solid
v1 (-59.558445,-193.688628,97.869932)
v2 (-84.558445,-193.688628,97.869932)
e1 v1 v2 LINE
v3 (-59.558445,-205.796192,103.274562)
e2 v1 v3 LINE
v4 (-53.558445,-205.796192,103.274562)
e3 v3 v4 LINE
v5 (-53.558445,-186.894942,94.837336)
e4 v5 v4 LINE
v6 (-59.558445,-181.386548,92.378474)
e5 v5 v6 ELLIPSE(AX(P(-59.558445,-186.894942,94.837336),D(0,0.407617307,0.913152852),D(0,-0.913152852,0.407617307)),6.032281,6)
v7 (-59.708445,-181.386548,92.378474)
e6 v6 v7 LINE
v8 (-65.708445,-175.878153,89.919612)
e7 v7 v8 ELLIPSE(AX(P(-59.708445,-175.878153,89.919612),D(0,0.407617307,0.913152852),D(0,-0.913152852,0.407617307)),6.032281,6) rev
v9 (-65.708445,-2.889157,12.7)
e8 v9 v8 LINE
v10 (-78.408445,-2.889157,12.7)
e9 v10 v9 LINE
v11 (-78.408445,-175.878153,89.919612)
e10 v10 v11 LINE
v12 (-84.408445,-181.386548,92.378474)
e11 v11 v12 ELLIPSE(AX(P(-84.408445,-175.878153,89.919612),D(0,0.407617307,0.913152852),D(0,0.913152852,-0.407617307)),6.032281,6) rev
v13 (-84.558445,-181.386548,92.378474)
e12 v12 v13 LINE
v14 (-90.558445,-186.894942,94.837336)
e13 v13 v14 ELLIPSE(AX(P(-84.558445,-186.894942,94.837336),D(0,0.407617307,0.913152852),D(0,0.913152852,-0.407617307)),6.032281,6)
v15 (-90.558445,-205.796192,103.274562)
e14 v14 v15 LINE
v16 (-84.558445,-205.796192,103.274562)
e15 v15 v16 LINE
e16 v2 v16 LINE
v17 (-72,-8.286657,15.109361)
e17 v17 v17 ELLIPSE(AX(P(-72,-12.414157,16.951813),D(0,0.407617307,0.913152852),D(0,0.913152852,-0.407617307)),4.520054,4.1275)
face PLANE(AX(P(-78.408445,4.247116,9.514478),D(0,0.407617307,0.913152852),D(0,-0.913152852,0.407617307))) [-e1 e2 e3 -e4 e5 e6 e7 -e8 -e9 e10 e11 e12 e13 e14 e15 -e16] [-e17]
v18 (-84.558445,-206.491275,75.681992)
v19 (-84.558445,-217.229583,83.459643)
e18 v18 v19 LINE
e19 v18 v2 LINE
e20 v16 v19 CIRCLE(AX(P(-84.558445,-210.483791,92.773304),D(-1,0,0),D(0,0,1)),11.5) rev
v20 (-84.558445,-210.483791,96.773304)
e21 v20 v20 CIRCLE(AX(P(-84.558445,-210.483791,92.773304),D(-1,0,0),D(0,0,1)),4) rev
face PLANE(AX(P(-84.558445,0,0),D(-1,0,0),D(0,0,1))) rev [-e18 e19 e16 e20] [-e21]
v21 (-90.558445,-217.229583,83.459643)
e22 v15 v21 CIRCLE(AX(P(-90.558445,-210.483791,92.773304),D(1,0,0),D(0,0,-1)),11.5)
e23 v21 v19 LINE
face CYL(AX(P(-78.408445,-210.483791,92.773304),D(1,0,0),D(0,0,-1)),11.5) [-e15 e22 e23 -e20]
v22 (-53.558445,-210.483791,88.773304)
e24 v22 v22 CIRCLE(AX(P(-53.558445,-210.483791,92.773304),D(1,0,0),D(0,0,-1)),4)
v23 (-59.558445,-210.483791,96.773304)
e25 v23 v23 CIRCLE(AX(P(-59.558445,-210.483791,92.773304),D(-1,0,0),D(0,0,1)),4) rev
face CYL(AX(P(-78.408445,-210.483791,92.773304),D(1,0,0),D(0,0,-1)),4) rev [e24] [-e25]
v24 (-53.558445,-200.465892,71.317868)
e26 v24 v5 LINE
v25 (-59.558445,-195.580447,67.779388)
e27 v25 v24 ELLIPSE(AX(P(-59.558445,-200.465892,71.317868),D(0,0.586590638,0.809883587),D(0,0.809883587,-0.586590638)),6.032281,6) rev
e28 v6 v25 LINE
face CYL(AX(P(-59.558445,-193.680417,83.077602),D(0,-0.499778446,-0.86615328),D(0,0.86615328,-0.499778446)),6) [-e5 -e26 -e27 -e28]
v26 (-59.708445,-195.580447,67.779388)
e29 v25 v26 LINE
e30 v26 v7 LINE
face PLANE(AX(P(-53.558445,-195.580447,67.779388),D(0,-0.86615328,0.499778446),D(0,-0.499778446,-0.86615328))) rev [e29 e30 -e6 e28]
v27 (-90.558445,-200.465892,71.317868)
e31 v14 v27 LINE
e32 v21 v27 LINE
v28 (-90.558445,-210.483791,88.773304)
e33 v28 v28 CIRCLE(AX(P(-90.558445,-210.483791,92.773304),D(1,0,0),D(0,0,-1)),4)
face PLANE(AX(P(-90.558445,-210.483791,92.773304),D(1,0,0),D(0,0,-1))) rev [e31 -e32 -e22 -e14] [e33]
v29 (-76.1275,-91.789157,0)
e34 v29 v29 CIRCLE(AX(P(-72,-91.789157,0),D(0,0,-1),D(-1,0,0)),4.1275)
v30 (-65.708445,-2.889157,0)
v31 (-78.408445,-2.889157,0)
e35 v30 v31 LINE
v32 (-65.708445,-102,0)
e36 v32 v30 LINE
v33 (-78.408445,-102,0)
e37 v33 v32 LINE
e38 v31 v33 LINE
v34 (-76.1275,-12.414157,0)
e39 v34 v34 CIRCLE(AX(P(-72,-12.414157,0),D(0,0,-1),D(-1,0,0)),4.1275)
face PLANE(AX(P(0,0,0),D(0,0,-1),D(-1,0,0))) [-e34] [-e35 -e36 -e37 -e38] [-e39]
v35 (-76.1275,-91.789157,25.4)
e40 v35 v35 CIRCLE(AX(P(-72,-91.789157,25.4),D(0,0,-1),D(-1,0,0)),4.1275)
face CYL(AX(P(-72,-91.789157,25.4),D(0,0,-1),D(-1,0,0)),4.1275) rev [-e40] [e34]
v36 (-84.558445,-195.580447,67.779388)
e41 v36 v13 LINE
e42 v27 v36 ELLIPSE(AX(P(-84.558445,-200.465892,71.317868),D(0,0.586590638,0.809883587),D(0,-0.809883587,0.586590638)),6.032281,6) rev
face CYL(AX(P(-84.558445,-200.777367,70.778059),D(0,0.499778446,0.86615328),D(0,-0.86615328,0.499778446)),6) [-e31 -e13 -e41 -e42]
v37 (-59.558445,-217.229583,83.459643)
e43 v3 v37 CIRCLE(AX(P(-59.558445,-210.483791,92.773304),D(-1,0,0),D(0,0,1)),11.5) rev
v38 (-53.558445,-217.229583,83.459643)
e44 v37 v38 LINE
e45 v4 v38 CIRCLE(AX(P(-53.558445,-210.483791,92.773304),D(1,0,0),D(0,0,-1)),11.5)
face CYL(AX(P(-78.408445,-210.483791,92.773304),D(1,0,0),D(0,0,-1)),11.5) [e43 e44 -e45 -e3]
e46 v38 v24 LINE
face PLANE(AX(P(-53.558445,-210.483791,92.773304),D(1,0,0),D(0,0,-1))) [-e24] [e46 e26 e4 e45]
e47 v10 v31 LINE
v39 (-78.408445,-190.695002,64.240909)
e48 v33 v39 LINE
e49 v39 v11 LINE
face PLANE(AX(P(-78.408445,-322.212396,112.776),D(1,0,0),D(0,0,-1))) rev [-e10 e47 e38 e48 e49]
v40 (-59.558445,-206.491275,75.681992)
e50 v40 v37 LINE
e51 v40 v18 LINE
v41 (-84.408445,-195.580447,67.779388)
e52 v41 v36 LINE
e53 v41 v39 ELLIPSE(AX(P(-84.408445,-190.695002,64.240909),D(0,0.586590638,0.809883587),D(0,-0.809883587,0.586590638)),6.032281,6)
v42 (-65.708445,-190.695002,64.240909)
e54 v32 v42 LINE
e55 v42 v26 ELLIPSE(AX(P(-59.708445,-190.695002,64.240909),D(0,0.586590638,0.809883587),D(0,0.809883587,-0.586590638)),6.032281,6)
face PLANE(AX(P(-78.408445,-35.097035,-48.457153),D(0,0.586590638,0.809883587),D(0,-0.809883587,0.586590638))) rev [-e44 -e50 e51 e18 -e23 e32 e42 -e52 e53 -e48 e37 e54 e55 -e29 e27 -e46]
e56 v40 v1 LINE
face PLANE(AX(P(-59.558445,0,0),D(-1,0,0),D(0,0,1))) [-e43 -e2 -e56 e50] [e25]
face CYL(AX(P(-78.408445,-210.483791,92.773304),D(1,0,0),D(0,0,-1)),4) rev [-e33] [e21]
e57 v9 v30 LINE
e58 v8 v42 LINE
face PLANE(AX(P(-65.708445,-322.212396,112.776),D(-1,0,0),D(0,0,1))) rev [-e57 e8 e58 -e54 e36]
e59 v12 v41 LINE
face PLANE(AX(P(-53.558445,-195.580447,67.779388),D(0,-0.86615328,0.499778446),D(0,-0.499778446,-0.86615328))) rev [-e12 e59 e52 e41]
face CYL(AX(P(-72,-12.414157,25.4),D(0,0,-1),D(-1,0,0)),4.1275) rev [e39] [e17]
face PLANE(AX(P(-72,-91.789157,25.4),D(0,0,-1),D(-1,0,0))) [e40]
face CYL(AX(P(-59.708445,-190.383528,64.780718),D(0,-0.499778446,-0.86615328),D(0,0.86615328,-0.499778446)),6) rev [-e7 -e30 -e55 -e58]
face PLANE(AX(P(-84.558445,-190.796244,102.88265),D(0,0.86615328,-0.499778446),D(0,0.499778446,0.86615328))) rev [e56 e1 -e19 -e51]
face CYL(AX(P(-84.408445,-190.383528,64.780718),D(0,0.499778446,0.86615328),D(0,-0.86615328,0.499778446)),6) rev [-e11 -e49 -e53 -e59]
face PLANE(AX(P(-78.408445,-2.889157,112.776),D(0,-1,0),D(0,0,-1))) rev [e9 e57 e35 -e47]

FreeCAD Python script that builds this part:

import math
import FreeCAD as App
import Part
import Sketcher

V = App.Vector


def edges_at(feature, points):
    """Names of the edges that pass closest to the given points."""
    edges = feature.Shape.Edges
    near = lambda p: min(range(len(edges)), key=lambda i: edges[i].distToShape(Part.Vertex(*p))[0])
    return sorted({f"Edge{near(p) + 1}" for p in points})


def add_polygon(sketch, points):
    """Adds a closed chain of lines whose ends are joined by coincident constraints."""
    first, n = sketch.GeometryCount, len(points)
    for a, b in zip(points, points[1:] + points[:1]):
        sketch.addGeometry(Part.LineSegment(App.Vector(*a, 0), App.Vector(*b, 0)), False)
    for i in range(n):
        sketch.addConstraint(Sketcher.Constraint("Coincident", first + i, 2, first + (i + 1) % n, 1))

doc = App.newDocument("Part")
body = doc.addObject("PartDesign::Body", "Body")

# Sketch on XY plane
sketch1 = doc.addObject("Sketcher::SketchObject", "Sketch")
body.addObject(sketch1)
sketch1.AttachmentSupport = (doc.XY_Plane, [""])
sketch1.MapMode = "FlatFace"
add_polygon(sketch1, [(-78.408445, -2.889157), (-78.408445, -322.212396), (-65.708445, -322.212396), (-65.708445, -2.889157)])  # lines 0-3
sketch1.addConstraint([
    Sketcher.Constraint("Vertical", 0),
    Sketcher.Constraint("Horizontal", 1),
    Sketcher.Constraint("Vertical", 2),
    Sketcher.Constraint("Horizontal", 3),
    Sketcher.Constraint("DistanceX", 1, 1, 1, 2, 12.7),
    Sketcher.Constraint("DistanceY", 0, 2, 0, 1, 319.32324),
    Sketcher.Constraint("DistanceX", 0, 2, -1, 1, 78.408445),
    Sketcher.Constraint("DistanceY", 0, 2, -1, 1, 322.212396),
])
pad1 = doc.addObject("PartDesign::Pad", "Pad")
body.addObject(pad1)
pad1.Profile = sketch1
pad1.Length = 112.776

# Sketch on YZ plane
sketch2 = doc.addObject("Sketcher::SketchObject", "Sketch001")
body.addObject(sketch2)
sketch2.AttachmentSupport = (doc.YZ_Plane, [""])
sketch2.MapMode = "FlatFace"
sketch2.AttachmentOffset = App.Placement(V(0, 0, -65.708445), App.Rotation())
sketch2.addGeometry([
    Part.LineSegment(V(-322.212396, 0, 0), V(-102, 0, 0)),  # 0
    Part.LineSegment(V(-102, 0, 0), V(-217.229583, 83.459643, 0)),  # 1
    Part.ArcOfCircle(Part.Circle(V(-210.483791, 92.773304, 0), V(0, 0, 1), 11.5), math.radians(65.944755), math.radians(234.084559)),  # 2
    Part.LineSegment(V(-205.796192, 103.274562, 0), V(-2.889157, 12.7, 0)),  # 3
    Part.LineSegment(V(-2.889157, 12.7, 0), V(-2.889157, 112.776, 0)),  # 4
    Part.LineSegment(V(-2.889157, 112.776, 0), V(-322.212396, 112.776, 0)),  # 5
    Part.LineSegment(V(-322.212396, 112.776, 0), V(-322.212396, 0, 0)),  # 6
    Part.Circle(V(-210.483791, 92.773304, 0), V(0, 0, 1), 4),  # 7
], False)
sketch2.addConstraint([
    Sketcher.Constraint("Coincident", 0, 2, 1, 1),
    Sketcher.Constraint("Tangent", 1, 2, 2, 2),
    Sketcher.Constraint("Tangent", 2, 1, 3, 1),
    Sketcher.Constraint("Coincident", 3, 2, 4, 1),
    Sketcher.Constraint("Coincident", 4, 2, 5, 1),
    Sketcher.Constraint("Coincident", 5, 2, 6, 1),
    Sketcher.Constraint("Coincident", 6, 2, 0, 1),
    Sketcher.Constraint("Horizontal", 0),
    Sketcher.Constraint("Vertical", 4),
    Sketcher.Constraint("Horizontal", 5),
    Sketcher.Constraint("Vertical", 6),
    Sketcher.Constraint("Coincident", 7, 3, 2, 3),
    Sketcher.Constraint("PointOnObject", 0, 2, -1),
    Sketcher.Constraint("Diameter", 7, 8.0),
    Sketcher.Constraint("Radius", 2, 11.5),
    Sketcher.Constraint("DistanceX", 0, 2, -1, 1, 102.0),
    Sketcher.Constraint("DistanceY", -1, 1, 3, 2, 12.7),
    Sketcher.Constraint("DistanceY", 4, 1, 4, 2, 100.076),
    Sketcher.Constraint("DistanceX", 5, 2, 5, 1, 319.32324),
    Sketcher.Constraint("DistanceX", 2, 3, 2, 1, 4.687599),
    Sketcher.Constraint("DistanceX", 0, 1, 0, 2, 220.212396),
    Sketcher.Constraint("DistanceX", 2, 3, -1, 1, 210.483791),
])
pocket1 = doc.addObject("PartDesign::Pocket", "Pocket")
body.addObject(pocket1)
pocket1.Profile = sketch2
pocket1.Type = "ThroughAll"

# Sketch on XY plane
sketch3 = doc.addObject("Sketcher::SketchObject", "Sketch002")
body.addObject(sketch3)
sketch3.AttachmentSupport = (doc.XY_Plane, [""])
sketch3.MapMode = "FlatFace"
sketch3.addGeometry([
    Part.Circle(V(-72, -12.414157, 0), V(0, 0, 1), 4.1275),
    Part.Circle(V(-72, -91.789157, 0), V(0, 0, 1), 4.1275),
], False)
sketch3.addConstraint([
    Sketcher.Constraint("Equal", 0, 1),
    Sketcher.Constraint("Vertical", 0, 3, 1, 3),
    Sketcher.Constraint("Diameter", 0, 8.255),
    Sketcher.Constraint("DistanceX", 0, 3, -1, 1, 72.0),
    Sketcher.Constraint("DistanceY", 1, 3, 0, 3, 79.375),
    Sketcher.Constraint("DistanceY", 0, 3, -1, 1, 12.414157),
])
pocket2 = doc.addObject("PartDesign::Pocket", "Pocket001")
body.addObject(pocket2)
pocket2.Profile = sketch3
pocket2.Length = 25.4
pocket2.Reversed = True

# Sketch on YZ plane
sketch4 = doc.addObject("Sketcher::SketchObject", "Sketch003")
body.addObject(sketch4)
sketch4.AttachmentSupport = (doc.YZ_Plane, [""])
sketch4.MapMode = "FlatFace"
sketch4.AttachmentOffset = App.Placement(V(0, 0, -72.058445), App.Rotation())
sketch4.addGeometry([
    Part.LineSegment(V(-195.580447, 67.779388, 0), V(-181.386548, 92.378474, 0)),  # 0
    Part.LineSegment(V(-181.386548, 92.378474, 0), V(-205.796192, 103.274562, 0)),  # 1
    Part.ArcOfCircle(Part.Circle(V(-210.483791, 92.773304, 0), V(0, 0, 1), 11.5), math.radians(65.944755), math.radians(234.084559)),  # 2
    Part.LineSegment(V(-217.229583, 83.459643, 0), V(-195.580447, 67.779388, 0)),  # 3
    Part.Circle(V(-210.483791, 92.773304, 0), V(0, 0, 1), 4),  # 4
], False)
sketch4.addConstraint([
    Sketcher.Constraint("Coincident", 0, 2, 1, 1),
    Sketcher.Constraint("Tangent", 1, 2, 2, 1),
    Sketcher.Constraint("Tangent", 2, 2, 3, 1),
    Sketcher.Constraint("Coincident", 3, 2, 0, 1),
    Sketcher.Constraint("Coincident", 4, 3, 2, 3),
    Sketcher.Constraint("Equal", 1, 3),
    Sketcher.Constraint("Diameter", 4, 8.0),
    Sketcher.Constraint("Radius", 2, 11.5),
    Sketcher.Constraint("DistanceX", 2, 3, 1, 2, 4.687599),
    Sketcher.Constraint("DistanceX", 3, 2, 0, 2, 14.1939),
    Sketcher.Constraint("Distance", 1, 26.73117),
    Sketcher.Constraint("DistanceX", 2, 3, -1, 1, 210.483791),
    Sketcher.Constraint("DistanceY", -1, 1, 1, 2, 103.274562),
])
pad2 = doc.addObject("PartDesign::Pad", "Pad001")
body.addObject(pad2)
pad2.Profile = sketch4
pad2.Length = 37
pad2.Midplane = True

# Sketch on YZ plane
sketch5 = doc.addObject("Sketcher::SketchObject", "Sketch004")
body.addObject(sketch5)
sketch5.AttachmentSupport = (doc.YZ_Plane, [""])
sketch5.MapMode = "FlatFace"
sketch5.AttachmentOffset = App.Placement(V(0, 0, -72.058445), App.Rotation())
add_polygon(sketch5, [(-217.519298, 56.569607), (-190.796244, 102.88265), (-230.32789, 153.833763), (-269.679128, 85.086214)])  # lines 0-3
sketch5.addConstraint([
    Sketcher.Constraint("Distance", 0, 53.469801),
    Sketcher.Constraint("Distance", 2, 79.213291),
    Sketcher.Constraint("Distance", 3, 59.44615),
    Sketcher.Constraint("DistanceY", -1, 1, 0, 2, 102.88265),
    Sketcher.Constraint("DistanceX", 1, 2, -1, 1, 230.32789),
    Sketcher.Constraint("DistanceX", 2, 2, -1, 1, 269.679128),
    Sketcher.Constraint("DistanceX", 2, 2, 3, 2, 52.159831),
    Sketcher.Constraint("Distance", 1, 64.488503),
])
pocket3 = doc.addObject("PartDesign::Pocket", "Pocket002")
body.addObject(pocket3)
pocket3.Profile = sketch5
pocket3.Length = 25
pocket3.Midplane = True
doc.recompute()

fillet = doc.addObject("PartDesign::Fillet", "Fillet")
body.addObject(fillet)
fillet.Base = (pocket3, edges_at(pocket3, [
    (-65.708, -188.483, 80.079),
    (-78.408, -188.483, 80.079),
    (-90.558, -188.483, 80.079),
    (-53.558, -188.483, 80.079),
]))
fillet.Radius = 6

doc.recompute()
